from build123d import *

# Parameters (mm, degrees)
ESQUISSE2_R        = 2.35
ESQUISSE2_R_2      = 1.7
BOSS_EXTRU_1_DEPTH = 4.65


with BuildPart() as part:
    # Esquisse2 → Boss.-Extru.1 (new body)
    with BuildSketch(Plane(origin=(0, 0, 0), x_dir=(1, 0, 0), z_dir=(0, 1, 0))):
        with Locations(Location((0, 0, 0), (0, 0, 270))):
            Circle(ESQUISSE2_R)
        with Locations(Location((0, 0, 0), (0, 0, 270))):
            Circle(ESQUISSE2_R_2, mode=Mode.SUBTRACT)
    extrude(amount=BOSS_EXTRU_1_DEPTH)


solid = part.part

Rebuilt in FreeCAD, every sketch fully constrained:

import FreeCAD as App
import Part
import Sketcher

doc = App.newDocument("Part")
body = doc.addObject("PartDesign::Body", "Body")

sketch1 = body.newObject("Sketcher::SketchObject", "Sketch")
sketch1.AttachmentSupport = (doc.getObject("XZ_Plane"), [""])
sketch1.MapMode = "FlatFace"
sketch1.addGeometry(Part.Circle(App.Vector(0, 0, 0), App.Vector(0, 0, 1), 2.35), False)
sketch1.addGeometry(Part.Circle(App.Vector(0, 0, 0), App.Vector(0, 0, 1), 1.7), False)
sketch1.addConstraint(Sketcher.Constraint("Coincident", 0, 3, -1, 1))
sketch1.addConstraint(Sketcher.Constraint("Coincident", 1, 3, -1, 1))
sketch1.addConstraint(Sketcher.Constraint("Diameter", 0, 4.7))
sketch1.addConstraint(Sketcher.Constraint("Diameter", 1, 3.4))
pad1 = body.newObject("PartDesign::Pad", "Pad")
pad1.Profile = sketch1
pad1.Length = 4.65
pad1.Reversed = True

doc.recompute()
